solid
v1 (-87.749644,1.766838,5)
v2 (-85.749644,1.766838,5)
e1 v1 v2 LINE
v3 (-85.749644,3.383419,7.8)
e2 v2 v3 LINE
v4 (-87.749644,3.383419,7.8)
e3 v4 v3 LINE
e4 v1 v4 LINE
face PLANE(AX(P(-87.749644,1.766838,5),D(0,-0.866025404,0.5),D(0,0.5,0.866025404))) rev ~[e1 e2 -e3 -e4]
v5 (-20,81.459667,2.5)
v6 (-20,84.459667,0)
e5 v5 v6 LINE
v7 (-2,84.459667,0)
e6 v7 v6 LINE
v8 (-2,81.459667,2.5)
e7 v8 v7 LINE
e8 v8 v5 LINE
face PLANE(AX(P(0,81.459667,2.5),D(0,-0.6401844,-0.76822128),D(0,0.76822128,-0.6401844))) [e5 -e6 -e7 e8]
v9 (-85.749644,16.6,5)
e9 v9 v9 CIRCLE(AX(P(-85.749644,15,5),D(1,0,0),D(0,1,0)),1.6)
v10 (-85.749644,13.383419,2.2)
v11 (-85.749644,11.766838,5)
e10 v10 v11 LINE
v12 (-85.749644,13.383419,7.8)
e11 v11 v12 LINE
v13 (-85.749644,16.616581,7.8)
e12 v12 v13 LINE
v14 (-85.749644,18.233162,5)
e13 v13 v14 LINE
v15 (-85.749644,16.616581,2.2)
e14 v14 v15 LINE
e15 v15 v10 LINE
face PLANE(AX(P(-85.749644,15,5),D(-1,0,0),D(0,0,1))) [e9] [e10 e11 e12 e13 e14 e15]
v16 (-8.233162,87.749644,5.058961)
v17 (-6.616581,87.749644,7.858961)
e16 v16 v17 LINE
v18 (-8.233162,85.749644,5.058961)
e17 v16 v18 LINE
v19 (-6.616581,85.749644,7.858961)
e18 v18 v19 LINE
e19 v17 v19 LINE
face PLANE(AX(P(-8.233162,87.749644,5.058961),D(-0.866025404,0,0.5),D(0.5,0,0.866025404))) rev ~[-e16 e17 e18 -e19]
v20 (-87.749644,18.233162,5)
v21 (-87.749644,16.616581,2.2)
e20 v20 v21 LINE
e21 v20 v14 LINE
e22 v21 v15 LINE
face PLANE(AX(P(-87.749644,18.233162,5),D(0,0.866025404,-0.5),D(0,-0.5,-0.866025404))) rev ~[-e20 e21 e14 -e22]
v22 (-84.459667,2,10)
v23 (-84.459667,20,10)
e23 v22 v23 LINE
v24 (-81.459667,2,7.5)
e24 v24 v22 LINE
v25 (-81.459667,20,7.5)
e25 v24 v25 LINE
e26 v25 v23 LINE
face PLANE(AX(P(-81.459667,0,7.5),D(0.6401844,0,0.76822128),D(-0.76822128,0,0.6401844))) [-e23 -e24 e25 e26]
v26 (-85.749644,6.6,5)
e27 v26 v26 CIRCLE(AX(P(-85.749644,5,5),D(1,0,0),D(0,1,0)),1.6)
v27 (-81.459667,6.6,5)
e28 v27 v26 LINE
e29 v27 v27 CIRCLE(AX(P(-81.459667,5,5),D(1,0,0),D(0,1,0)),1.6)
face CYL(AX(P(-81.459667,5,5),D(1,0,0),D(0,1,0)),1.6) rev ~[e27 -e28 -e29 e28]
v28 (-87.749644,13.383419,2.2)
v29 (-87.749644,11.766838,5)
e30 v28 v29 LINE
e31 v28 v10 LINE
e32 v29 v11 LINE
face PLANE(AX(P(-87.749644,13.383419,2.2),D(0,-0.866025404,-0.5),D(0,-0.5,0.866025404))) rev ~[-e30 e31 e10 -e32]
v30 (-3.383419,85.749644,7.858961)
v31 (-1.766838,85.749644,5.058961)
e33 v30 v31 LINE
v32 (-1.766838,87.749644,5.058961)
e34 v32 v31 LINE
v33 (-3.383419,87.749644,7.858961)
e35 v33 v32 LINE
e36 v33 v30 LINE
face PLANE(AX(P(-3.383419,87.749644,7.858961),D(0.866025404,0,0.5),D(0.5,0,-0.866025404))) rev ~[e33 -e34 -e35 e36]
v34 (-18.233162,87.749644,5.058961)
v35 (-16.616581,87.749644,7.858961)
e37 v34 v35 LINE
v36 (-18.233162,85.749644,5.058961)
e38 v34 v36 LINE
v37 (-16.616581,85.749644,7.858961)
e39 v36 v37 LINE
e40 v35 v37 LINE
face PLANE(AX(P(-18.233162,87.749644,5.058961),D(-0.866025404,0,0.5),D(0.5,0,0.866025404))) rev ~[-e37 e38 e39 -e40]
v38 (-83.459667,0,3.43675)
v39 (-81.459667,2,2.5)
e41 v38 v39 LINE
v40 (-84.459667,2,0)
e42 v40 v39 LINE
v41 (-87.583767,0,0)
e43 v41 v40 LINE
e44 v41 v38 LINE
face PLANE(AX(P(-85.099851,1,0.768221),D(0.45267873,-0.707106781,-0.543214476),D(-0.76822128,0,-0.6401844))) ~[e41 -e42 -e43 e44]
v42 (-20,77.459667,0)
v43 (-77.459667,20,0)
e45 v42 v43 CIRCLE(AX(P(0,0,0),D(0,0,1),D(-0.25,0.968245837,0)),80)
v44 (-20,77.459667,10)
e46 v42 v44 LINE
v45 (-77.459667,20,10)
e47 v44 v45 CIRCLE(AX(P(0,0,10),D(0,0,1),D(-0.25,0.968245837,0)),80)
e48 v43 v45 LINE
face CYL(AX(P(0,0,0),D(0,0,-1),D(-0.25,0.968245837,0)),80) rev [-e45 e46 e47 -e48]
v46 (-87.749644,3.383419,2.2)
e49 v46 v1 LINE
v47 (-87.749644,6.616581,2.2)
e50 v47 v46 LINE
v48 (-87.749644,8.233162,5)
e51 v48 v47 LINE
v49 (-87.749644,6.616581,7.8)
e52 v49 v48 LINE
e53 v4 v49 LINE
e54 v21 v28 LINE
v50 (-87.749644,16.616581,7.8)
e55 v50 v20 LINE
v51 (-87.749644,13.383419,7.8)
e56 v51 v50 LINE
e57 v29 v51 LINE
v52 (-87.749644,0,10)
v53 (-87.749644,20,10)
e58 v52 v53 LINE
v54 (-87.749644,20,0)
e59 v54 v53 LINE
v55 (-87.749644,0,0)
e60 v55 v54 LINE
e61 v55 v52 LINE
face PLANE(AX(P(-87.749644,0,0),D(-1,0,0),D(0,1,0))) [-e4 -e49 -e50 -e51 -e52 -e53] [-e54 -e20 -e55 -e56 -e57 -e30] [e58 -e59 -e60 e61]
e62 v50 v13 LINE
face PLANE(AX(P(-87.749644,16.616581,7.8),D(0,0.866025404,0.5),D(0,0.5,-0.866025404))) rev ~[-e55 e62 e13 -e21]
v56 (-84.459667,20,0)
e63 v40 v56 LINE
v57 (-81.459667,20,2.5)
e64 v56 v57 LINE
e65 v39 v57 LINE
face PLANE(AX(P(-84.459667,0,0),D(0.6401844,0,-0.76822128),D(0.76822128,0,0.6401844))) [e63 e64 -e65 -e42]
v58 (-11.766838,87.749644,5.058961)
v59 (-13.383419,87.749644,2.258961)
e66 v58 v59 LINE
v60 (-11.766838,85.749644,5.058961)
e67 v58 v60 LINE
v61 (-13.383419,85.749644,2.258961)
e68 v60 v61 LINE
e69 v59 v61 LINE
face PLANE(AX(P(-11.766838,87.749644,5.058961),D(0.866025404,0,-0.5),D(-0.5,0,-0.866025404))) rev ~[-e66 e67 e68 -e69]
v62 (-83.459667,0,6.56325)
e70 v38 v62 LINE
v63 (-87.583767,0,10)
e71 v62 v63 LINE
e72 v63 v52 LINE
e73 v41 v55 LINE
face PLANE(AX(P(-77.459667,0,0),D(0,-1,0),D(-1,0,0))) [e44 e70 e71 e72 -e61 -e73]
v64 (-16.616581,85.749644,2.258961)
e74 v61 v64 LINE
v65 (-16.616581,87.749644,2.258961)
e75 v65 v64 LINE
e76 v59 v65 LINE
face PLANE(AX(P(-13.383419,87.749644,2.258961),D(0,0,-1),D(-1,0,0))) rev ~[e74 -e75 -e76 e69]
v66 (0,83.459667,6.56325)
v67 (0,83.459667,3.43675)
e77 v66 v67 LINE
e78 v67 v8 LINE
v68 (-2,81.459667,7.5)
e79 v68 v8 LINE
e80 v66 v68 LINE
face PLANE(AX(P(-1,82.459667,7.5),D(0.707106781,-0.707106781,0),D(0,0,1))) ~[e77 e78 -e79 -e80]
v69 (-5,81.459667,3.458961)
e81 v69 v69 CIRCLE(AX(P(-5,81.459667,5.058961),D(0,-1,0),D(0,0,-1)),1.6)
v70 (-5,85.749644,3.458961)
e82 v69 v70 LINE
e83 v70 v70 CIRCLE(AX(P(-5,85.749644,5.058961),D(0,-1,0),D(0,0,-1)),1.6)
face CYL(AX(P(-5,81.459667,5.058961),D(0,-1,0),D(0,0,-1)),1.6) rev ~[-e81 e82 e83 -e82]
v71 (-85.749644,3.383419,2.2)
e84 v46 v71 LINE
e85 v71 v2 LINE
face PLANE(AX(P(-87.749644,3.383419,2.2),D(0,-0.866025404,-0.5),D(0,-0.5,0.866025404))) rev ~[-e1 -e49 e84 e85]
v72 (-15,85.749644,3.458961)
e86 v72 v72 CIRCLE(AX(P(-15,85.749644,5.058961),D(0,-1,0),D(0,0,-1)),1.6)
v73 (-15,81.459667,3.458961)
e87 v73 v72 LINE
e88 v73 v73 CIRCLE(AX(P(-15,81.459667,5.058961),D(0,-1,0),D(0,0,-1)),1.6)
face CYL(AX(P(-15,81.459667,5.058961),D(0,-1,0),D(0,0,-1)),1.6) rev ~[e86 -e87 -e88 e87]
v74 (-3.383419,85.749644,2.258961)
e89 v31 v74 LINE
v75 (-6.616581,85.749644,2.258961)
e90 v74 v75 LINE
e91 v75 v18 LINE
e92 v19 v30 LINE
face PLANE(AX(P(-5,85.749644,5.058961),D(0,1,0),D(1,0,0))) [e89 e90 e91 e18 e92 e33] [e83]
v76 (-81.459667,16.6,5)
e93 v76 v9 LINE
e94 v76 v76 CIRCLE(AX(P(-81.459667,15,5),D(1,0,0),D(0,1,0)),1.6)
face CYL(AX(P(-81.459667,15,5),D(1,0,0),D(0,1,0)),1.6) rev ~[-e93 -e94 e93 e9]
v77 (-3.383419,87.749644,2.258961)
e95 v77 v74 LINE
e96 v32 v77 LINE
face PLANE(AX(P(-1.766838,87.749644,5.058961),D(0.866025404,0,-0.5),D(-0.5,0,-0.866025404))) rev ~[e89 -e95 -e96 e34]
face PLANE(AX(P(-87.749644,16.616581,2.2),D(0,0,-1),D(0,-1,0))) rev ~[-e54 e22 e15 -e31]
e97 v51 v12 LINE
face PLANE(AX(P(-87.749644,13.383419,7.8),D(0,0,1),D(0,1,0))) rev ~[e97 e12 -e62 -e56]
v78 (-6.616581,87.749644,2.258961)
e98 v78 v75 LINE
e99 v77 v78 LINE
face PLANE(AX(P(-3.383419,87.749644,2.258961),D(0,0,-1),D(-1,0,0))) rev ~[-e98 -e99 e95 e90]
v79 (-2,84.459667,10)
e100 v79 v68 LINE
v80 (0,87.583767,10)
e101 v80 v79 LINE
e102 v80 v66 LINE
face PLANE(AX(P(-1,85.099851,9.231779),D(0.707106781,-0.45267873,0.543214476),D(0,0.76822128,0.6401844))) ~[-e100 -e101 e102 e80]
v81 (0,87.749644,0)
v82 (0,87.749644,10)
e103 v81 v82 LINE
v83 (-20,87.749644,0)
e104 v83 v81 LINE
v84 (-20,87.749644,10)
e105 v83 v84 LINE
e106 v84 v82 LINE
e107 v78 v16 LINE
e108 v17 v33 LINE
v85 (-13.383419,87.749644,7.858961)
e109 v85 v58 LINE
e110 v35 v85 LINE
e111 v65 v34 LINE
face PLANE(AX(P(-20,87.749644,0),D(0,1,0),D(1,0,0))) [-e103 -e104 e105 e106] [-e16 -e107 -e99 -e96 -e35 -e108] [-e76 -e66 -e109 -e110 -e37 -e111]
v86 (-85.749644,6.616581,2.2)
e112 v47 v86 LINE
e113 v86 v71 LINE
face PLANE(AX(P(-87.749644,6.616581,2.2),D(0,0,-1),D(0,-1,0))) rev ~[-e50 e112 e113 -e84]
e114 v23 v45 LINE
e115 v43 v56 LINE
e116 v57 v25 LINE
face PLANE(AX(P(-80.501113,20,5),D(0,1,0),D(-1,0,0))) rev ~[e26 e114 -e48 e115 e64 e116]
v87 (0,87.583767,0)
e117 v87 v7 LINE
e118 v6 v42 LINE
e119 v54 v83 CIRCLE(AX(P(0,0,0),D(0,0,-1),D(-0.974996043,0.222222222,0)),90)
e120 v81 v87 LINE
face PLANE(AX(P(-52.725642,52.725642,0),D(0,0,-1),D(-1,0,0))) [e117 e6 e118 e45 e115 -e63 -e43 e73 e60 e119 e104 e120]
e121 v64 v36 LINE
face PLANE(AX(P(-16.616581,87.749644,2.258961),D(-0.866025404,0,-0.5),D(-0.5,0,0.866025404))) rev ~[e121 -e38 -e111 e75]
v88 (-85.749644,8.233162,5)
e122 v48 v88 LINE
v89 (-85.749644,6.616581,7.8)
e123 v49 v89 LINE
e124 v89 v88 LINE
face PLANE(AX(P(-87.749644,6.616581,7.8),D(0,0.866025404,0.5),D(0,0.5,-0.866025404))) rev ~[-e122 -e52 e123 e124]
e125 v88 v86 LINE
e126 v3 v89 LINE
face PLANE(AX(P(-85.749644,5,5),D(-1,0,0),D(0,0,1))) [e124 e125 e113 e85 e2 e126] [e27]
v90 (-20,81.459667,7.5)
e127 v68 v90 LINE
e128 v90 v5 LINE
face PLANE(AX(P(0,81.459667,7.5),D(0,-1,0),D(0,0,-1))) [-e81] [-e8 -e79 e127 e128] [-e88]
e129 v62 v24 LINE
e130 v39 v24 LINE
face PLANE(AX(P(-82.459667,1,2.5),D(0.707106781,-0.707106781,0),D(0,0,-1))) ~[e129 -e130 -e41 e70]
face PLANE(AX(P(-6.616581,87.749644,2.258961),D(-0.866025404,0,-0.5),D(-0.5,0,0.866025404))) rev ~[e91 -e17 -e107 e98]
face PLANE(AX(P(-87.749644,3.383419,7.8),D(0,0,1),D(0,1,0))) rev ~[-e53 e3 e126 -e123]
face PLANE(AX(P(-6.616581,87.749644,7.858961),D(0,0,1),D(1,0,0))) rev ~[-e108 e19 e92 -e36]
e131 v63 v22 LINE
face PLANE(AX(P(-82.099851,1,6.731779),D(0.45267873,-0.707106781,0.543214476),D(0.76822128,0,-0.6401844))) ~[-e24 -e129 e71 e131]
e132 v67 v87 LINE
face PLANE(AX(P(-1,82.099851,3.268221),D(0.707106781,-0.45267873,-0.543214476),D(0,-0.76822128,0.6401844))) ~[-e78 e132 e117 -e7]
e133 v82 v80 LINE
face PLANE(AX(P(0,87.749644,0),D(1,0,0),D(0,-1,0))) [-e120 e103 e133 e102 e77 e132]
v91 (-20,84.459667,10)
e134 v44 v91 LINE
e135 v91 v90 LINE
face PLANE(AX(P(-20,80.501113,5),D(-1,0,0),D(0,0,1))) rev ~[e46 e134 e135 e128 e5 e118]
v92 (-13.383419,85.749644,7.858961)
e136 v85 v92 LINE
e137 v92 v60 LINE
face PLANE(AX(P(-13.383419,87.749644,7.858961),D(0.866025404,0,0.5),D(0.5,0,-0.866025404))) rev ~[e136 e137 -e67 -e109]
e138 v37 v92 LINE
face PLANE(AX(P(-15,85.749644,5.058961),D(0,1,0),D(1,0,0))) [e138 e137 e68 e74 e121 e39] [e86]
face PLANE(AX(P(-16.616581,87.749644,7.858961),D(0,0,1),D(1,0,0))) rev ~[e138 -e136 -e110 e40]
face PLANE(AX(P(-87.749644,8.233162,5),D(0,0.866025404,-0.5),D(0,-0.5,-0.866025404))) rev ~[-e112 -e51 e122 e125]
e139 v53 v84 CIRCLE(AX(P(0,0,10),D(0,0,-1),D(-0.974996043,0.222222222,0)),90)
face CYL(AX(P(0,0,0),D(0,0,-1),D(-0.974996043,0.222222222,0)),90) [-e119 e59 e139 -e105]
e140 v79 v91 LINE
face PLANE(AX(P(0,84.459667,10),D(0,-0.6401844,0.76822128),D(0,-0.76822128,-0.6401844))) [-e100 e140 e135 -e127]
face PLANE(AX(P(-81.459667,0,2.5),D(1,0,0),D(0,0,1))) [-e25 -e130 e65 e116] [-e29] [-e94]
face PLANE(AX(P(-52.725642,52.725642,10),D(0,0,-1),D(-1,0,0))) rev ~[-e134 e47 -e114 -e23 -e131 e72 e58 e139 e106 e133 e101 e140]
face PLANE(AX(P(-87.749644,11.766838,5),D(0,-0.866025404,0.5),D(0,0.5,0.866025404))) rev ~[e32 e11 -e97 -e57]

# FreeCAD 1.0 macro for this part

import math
import FreeCAD as App
import Part
import Sketcher

V = App.Vector
Q = App.Units.Quantity


def edges_at(feature, points):
    """Names of the edges that pass closest to the given points."""
    edges = feature.Shape.Edges
    near = lambda p: min(range(len(edges)), key=lambda i: edges[i].distToShape(Part.Vertex(*p))[0])
    return sorted({f"Edge{near(p) + 1}" for p in points})


def add_polygon(sketch, points):
    """Adds a closed chain of lines whose ends are joined by coincident constraints."""
    first, n = sketch.GeometryCount, len(points)
    for a, b in zip(points, points[1:] + points[:1]):
        sketch.addGeometry(Part.LineSegment(App.Vector(*a, 0), App.Vector(*b, 0)), False)
    for i in range(n):
        sketch.addConstraint(Sketcher.Constraint("Coincident", first + i, 2, first + (i + 1) % n, 1))

doc = App.newDocument("Part")
body = doc.addObject("PartDesign::Body", "Body")

# Sketch on XY plane
sketch1 = doc.addObject("Sketcher::SketchObject", "Sketch")
body.addObject(sketch1)
sketch1.AttachmentSupport = (doc.XY_Plane, [""])
sketch1.MapMode = "FlatFace"
sketch1.addGeometry(Part.LineSegment(V(0, 88, 0), V(-20, 88, 0)), False)
sketch1.addGeometry(Part.ArcOfCircle(Part.Circle(V(0, 0, 0), V(0, 0, 1), 90), math.radians(103), math.radians(167)), False)
sketch1.addGeometry(Part.LineSegment(V(-88, 20, 0), V(-88, 0, 0)), False)
sketch1.addGeometry(Part.LineSegment(V(-88, 0, 0), V(-77, 0, 0)), False)
sketch1.addGeometry(Part.LineSegment(V(-77, 0, 0), V(-77, 20, 0)), False)
sketch1.addGeometry(Part.ArcOfCircle(Part.Circle(V(0, 0, 0), V(0, 0, 1), 80), math.radians(104), math.radians(166)), False)
sketch1.addGeometry(Part.LineSegment(V(-20, 77, 0), V(0, 77, 0)), False)
sketch1.addGeometry(Part.LineSegment(V(0, 77, 0), V(0, 88, 0)), False)
sketch1.addConstraint(Sketcher.Constraint("Coincident", 0, 2, 1, 1))
sketch1.addConstraint(Sketcher.Constraint("Coincident", 1, 2, 2, 1))
sketch1.addConstraint(Sketcher.Constraint("Coincident", 2, 2, 3, 1))
sketch1.addConstraint(Sketcher.Constraint("Coincident", 3, 2, 4, 1))
sketch1.addConstraint(Sketcher.Constraint("Coincident", 4, 2, 5, 2))
sketch1.addConstraint(Sketcher.Constraint("Coincident", 5, 1, 6, 1))
sketch1.addConstraint(Sketcher.Constraint("Coincident", 6, 2, 7, 1))
sketch1.addConstraint(Sketcher.Constraint("Coincident", 7, 2, 0, 1))
sketch1.addConstraint(Sketcher.Constraint("Horizontal", 0))
sketch1.addConstraint(Sketcher.Constraint("Vertical", 2))
sketch1.addConstraint(Sketcher.Constraint("Horizontal", 3))
sketch1.addConstraint(Sketcher.Constraint("Vertical", 4))
sketch1.addConstraint(Sketcher.Constraint("Horizontal", 6))
sketch1.addConstraint(Sketcher.Constraint("Vertical", 7))
sketch1.addConstraint(Sketcher.Constraint("Coincident", 1, 3, -1, 1))
sketch1.addConstraint(Sketcher.Constraint("Coincident", 5, 3, -1, 1))
sketch1.addConstraint(Sketcher.Constraint("PointOnObject", 2, 2, -1))
sketch1.addConstraint(Sketcher.Constraint("PointOnObject", 6, 2, -2))
sketch1.addConstraint(Sketcher.Constraint("Horizontal", 1, 2, 4, 2))
sketch1.addConstraint(Sketcher.Constraint("Vertical", 0, 2, 5, 1))
sketch1.addConstraint(Sketcher.Constraint("Equal", 6, 2))
sketch1.addConstraint(Sketcher.Constraint("Radius", 1, 90.0))
sketch1.addConstraint(Sketcher.Constraint("Radius", 5, 80.0))
sketch1.addConstraint(Sketcher.Constraint("DistanceX", 0, 2, 0, 1, 20.0))
pad1 = doc.addObject("PartDesign::Pad", "Pad")
body.addObject(pad1)
pad1.Profile = sketch1
pad1.Length = 10

# Sketch on XZ plane
sketch2 = doc.addObject("Sketcher::SketchObject", "Sketch001")
body.addObject(sketch2)
sketch2.AttachmentSupport = (doc.XZ_Plane, [""])
sketch2.MapMode = "FlatFace"
add_polygon(sketch2, [(-77.5, 10), (-84.5, 10), (-81.5, 7.5), (-81.5, 2.5), (-84.5, 0), (-77.5, 0)])  # lines 0-5
sketch2.addConstraint(Sketcher.Constraint("Horizontal", 0))
sketch2.addConstraint(Sketcher.Constraint("Vertical", 2))
sketch2.addConstraint(Sketcher.Constraint("Horizontal", 4))
sketch2.addConstraint(Sketcher.Constraint("Vertical", 5))
sketch2.addConstraint(Sketcher.Constraint("PointOnObject", 3, 2, -1))
sketch2.addConstraint(Sketcher.Constraint("Vertical", 0, 2, 3, 2))
sketch2.addConstraint(Sketcher.Constraint("Equal", 1, 3))
sketch2.addConstraint(Sketcher.Constraint("DistanceX", 0, 2, 0, 1, 7.0))
sketch2.addConstraint(Sketcher.Constraint("DistanceY", 2, 2, 2, 1, 5.0))
sketch2.addConstraint(Sketcher.Constraint("DistanceY", 5, 1, 5, 2, 10.0))
sketch2.addConstraint(Sketcher.Constraint("DistanceX", 0, 2, 1, 2, 3.0))
sketch2.addConstraint(Sketcher.Constraint("DistanceX", 0, 2, -1, 1, 84.459667))
pocket1 = doc.addObject("PartDesign::Pocket", "Pocket")
body.addObject(pocket1)
pocket1.Profile = sketch2
pocket1.Length = 20

# Sketch on YZ plane
sketch3 = doc.addObject("Sketcher::SketchObject", "Sketch002")
body.addObject(sketch3)
sketch3.AttachmentSupport = (doc.YZ_Plane, [""])
sketch3.MapMode = "FlatFace"
add_polygon(sketch3, [(77.5, 0), (84.5, 0), (81.5, 2.5), (81.5, 7.5), (84.5, 10), (77.5, 10)])  # lines 0-5
sketch3.addConstraint(Sketcher.Constraint("Horizontal", 0))
sketch3.addConstraint(Sketcher.Constraint("Vertical", 2))
sketch3.addConstraint(Sketcher.Constraint("Horizontal", 4))
sketch3.addConstraint(Sketcher.Constraint("Vertical", 5))
sketch3.addConstraint(Sketcher.Constraint("PointOnObject", 0, 2, -1))
sketch3.addConstraint(Sketcher.Constraint("Vertical", 0, 2, 3, 2))
sketch3.addConstraint(Sketcher.Constraint("Equal", 1, 3))
sketch3.addConstraint(Sketcher.Constraint("DistanceX", 0, 1, 0, 2, 7.0))
sketch3.addConstraint(Sketcher.Constraint("DistanceY", 2, 1, 2, 2, 5.0))
sketch3.addConstraint(Sketcher.Constraint("DistanceY", 5, 2, 5, 1, 10.0))
sketch3.addConstraint(Sketcher.Constraint("DistanceX", 1, 2, 0, 2, 3.0))
sketch3.addConstraint(Sketcher.Constraint("DistanceX", -1, 1, 0, 2, 84.459667))
pocket2 = doc.addObject("PartDesign::Pocket", "Pocket001")
body.addObject(pocket2)
pocket2.Profile = sketch3
pocket2.Length = 20

# Sketch on YZ plane
sketch4 = doc.addObject("Sketcher::SketchObject", "Sketch003")
body.addObject(sketch4)
sketch4.AttachmentSupport = (doc.YZ_Plane, [""])
sketch4.MapMode = "FlatFace"
sketch4.AttachmentOffset = App.Placement(V(0, 0, -81.459667), App.Rotation())
sketch4.addGeometry(Part.Circle(V(5, 5, 0), V(0, 0, 1), 1.6), False)
sketch4.addGeometry(Part.Circle(V(15, 5, 0), V(0, 0, 1), 1.6), False)
sketch4.addConstraint(Sketcher.Constraint("Equal", 0, 1))
sketch4.addConstraint(Sketcher.Constraint("Horizontal", 0, 3, 1, 3))
sketch4.addConstraint(Sketcher.Constraint("Diameter", 0, 3.2))
sketch4.addConstraint(Sketcher.Constraint("DistanceX", -1, 1, 0, 3, 5.0))
sketch4.addConstraint(Sketcher.Constraint("DistanceY", -1, 1, 0, 3, 5.0))
sketch4.addConstraint(Sketcher.Constraint("DistanceX", -1, 1, 1, 3, 15.0))
pocket3 = doc.addObject("PartDesign::Pocket", "Pocket002")
body.addObject(pocket3)
pocket3.Profile = sketch4
pocket3.Length = 20

# Sketch on XZ plane
sketch5 = doc.addObject("Sketcher::SketchObject", "Sketch004")
body.addObject(sketch5)
sketch5.AttachmentSupport = (doc.XZ_Plane, [""])
sketch5.MapMode = "FlatFace"
sketch5.AttachmentOffset = App.Placement(V(0, 0, -81.459667), App.Rotation())
sketch5.addGeometry(Part.Circle(V(-5, 5.1, 0), V(0, 0, 1), 1.6), False)
sketch5.addGeometry(Part.Circle(V(-15, 5.1, 0), V(0, 0, 1), 1.6), False)
sketch5.addConstraint(Sketcher.Constraint("Equal", 0, 1))
sketch5.addConstraint(Sketcher.Constraint("Horizontal", 0, 3, 1, 3))
sketch5.addConstraint(Sketcher.Constraint("Diameter", 0, 3.2))
sketch5.addConstraint(Sketcher.Constraint("DistanceX", 0, 3, -1, 1, 5.0))
sketch5.addConstraint(Sketcher.Constraint("DistanceX", 1, 3, -1, 1, 15.0))
sketch5.addConstraint(Sketcher.Constraint("DistanceY", -1, 1, 0, 3, 5.058961))
pocket4 = doc.addObject("PartDesign::Pocket", "Pocket003")
body.addObject(pocket4)
pocket4.Profile = sketch5
pocket4.Length = 20
doc.recompute()

chamfer = doc.addObject("PartDesign::Chamfer", "Chamfer")
body.addObject(chamfer)
chamfer.Base = (pocket4, edges_at(pocket4, [
    (-82.96, 0, 8.75),
    (-81.46, 0, 5),
    (-82.96, 0, 1.25),
    (0, 82.96, 1.25),
    (0, 81.46, 5),
    (0, 82.96, 8.75),
]))
chamfer.Size = 2

# Sketch on YZ plane
sketch6 = doc.addObject("Sketcher::SketchObject", "Sketch005")
body.addObject(sketch6)
sketch6.AttachmentSupport = (doc.YZ_Plane, [""])
sketch6.MapMode = "FlatFace"
sketch6.AttachmentOffset = App.Placement(V(0, 0, -87.749644), App.Rotation())
add_polygon(sketch6, [(6.6, 2.2), (3.4, 2.2), (1.8, 5), (3.4, 7.8), (6.6, 7.8), (8.2, 5)])  # lines 0-5
add_polygon(sketch6, [(16.6, 7.8), (18.2, 5), (16.6, 2.2), (13.4, 2.2), (11.8, 5), (13.4, 7.8)])  # lines 6-11
sketch6.addConstraint(Sketcher.Constraint("Horizontal", 0))
sketch6.addConstraint(Sketcher.Constraint("Horizontal", 3))
sketch6.addConstraint(Sketcher.Constraint("Horizontal", 8))
sketch6.addConstraint(Sketcher.Constraint("Horizontal", 11))
sketch6.addConstraint(Sketcher.Constraint("Parallel", 1, 4))
sketch6.addConstraint(Sketcher.Constraint("Parallel", 2, 5))
sketch6.addConstraint(Sketcher.Constraint("Parallel", 4, 6))
sketch6.addConstraint(Sketcher.Constraint("Parallel", 5, 7))
sketch6.addConstraint(Sketcher.Constraint("Parallel", 6, 9))
sketch6.addConstraint(Sketcher.Constraint("Parallel", 7, 10))
sketch6.addConstraint(Sketcher.Constraint("Horizontal", 1, 2, 4, 2))
sketch6.addConstraint(Sketcher.Constraint("Horizontal", 4, 2, 6, 2))
sketch6.addConstraint(Sketcher.Constraint("Horizontal", 5, 2, 7, 2))
sketch6.addConstraint(Sketcher.Constraint("Horizontal", 6, 2, 9, 2))
sketch6.addConstraint(Sketcher.Constraint("Horizontal", 3, 2, 10, 2))
sketch6.addConstraint(Sketcher.Constraint("Vertical", 0, 2, 2, 2))
sketch6.addConstraint(Sketcher.Constraint("Vertical", 3, 2, 5, 2))
sketch6.addConstraint(Sketcher.Constraint("Equal", 3, 8))
sketch6.addConstraint(Sketcher.Constraint("Angle", 1, Q("120 deg")))
sketch6.addConstraint(Sketcher.Constraint("DistanceY", -1, 1, 1, 2, 5.0))
sketch6.addConstraint(Sketcher.Constraint("DistanceX", 4, 2, 6, 2, 10.0))
sketch6.addConstraint(Sketcher.Constraint("DistanceY", -1, 1, 0, 2, 2.2))
sketch6.addConstraint(Sketcher.Constraint("DistanceX", 0, 2, 0, 1, 3.233162))
sketch6.addConstraint(Sketcher.Constraint("DistanceX", -1, 1, 0, 2, 3.383419))
pocket5 = doc.addObject("PartDesign::Pocket", "Pocket004")
body.addObject(pocket5)
pocket5.Profile = sketch6
pocket5.Length = 2
pocket5.Reversed = True

# Sketch on XZ plane
sketch7 = doc.addObject("Sketcher::SketchObject", "Sketch006")
body.addObject(sketch7)
sketch7.AttachmentSupport = (doc.XZ_Plane, [""])
sketch7.MapMode = "FlatFace"
sketch7.AttachmentOffset = App.Placement(V(0, 0, -87.749644), App.Rotation())
add_polygon(sketch7, [(-3.4, 2.3), (-6.6, 2.3), (-8.2, 5.1), (-6.6, 7.9), (-3.4, 7.9), (-1.8, 5.1)])  # lines 0-5
add_polygon(sketch7, [(-13.4, 2.3), (-16.6, 2.3), (-18.2, 5.1), (-16.6, 7.9), (-13.4, 7.9), (-11.8, 5.1)])  # lines 6-11
sketch7.addConstraint(Sketcher.Constraint("Horizontal", 0))
sketch7.addConstraint(Sketcher.Constraint("Horizontal", 3))
sketch7.addConstraint(Sketcher.Constraint("Horizontal", 6))
sketch7.addConstraint(Sketcher.Constraint("Horizontal", 9))
sketch7.addConstraint(Sketcher.Constraint("Parallel", 1, 4))
sketch7.addConstraint(Sketcher.Constraint("Parallel", 2, 5))
sketch7.addConstraint(Sketcher.Constraint("Parallel", 4, 7))
sketch7.addConstraint(Sketcher.Constraint("Parallel", 5, 8))
sketch7.addConstraint(Sketcher.Constraint("Parallel", 7, 10))
sketch7.addConstraint(Sketcher.Constraint("Parallel", 8, 11))
sketch7.addConstraint(Sketcher.Constraint("Horizontal", 1, 2, 4, 2))
sketch7.addConstraint(Sketcher.Constraint("Horizontal", 5, 2, 6, 2))
sketch7.addConstraint(Sketcher.Constraint("Horizontal", 4, 2, 7, 2))
sketch7.addConstraint(Sketcher.Constraint("Horizontal", 3, 2, 8, 2))
sketch7.addConstraint(Sketcher.Constraint("Horizontal", 7, 2, 10, 2))
sketch7.addConstraint(Sketcher.Constraint("Vertical", 0, 2, 2, 2))
sketch7.addConstraint(Sketcher.Constraint("Vertical", 3, 2, 5, 2))
sketch7.addConstraint(Sketcher.Constraint("Equal", 3, 6))
sketch7.addConstraint(Sketcher.Constraint("Angle", 1, Q("120 deg")))
sketch7.addConstraint(Sketcher.Constraint("DistanceX", 6, 2, 0, 2, 10.0))
sketch7.addConstraint(Sketcher.Constraint("DistanceY", 0, 2, 1, 2, 2.8))
sketch7.addConstraint(Sketcher.Constraint("DistanceX", 0, 2, 0, 1, 3.233162))
sketch7.addConstraint(Sketcher.Constraint("DistanceX", 0, 2, -1, 1, 6.616581))
sketch7.addConstraint(Sketcher.Constraint("DistanceY", -1, 1, 0, 2, 2.258961))
pocket6 = doc.addObject("PartDesign::Pocket", "Pocket005")
body.addObject(pocket6)
pocket6.Profile = sketch7
pocket6.Length = 2
pocket6.Reversed = True

doc.recompute()
